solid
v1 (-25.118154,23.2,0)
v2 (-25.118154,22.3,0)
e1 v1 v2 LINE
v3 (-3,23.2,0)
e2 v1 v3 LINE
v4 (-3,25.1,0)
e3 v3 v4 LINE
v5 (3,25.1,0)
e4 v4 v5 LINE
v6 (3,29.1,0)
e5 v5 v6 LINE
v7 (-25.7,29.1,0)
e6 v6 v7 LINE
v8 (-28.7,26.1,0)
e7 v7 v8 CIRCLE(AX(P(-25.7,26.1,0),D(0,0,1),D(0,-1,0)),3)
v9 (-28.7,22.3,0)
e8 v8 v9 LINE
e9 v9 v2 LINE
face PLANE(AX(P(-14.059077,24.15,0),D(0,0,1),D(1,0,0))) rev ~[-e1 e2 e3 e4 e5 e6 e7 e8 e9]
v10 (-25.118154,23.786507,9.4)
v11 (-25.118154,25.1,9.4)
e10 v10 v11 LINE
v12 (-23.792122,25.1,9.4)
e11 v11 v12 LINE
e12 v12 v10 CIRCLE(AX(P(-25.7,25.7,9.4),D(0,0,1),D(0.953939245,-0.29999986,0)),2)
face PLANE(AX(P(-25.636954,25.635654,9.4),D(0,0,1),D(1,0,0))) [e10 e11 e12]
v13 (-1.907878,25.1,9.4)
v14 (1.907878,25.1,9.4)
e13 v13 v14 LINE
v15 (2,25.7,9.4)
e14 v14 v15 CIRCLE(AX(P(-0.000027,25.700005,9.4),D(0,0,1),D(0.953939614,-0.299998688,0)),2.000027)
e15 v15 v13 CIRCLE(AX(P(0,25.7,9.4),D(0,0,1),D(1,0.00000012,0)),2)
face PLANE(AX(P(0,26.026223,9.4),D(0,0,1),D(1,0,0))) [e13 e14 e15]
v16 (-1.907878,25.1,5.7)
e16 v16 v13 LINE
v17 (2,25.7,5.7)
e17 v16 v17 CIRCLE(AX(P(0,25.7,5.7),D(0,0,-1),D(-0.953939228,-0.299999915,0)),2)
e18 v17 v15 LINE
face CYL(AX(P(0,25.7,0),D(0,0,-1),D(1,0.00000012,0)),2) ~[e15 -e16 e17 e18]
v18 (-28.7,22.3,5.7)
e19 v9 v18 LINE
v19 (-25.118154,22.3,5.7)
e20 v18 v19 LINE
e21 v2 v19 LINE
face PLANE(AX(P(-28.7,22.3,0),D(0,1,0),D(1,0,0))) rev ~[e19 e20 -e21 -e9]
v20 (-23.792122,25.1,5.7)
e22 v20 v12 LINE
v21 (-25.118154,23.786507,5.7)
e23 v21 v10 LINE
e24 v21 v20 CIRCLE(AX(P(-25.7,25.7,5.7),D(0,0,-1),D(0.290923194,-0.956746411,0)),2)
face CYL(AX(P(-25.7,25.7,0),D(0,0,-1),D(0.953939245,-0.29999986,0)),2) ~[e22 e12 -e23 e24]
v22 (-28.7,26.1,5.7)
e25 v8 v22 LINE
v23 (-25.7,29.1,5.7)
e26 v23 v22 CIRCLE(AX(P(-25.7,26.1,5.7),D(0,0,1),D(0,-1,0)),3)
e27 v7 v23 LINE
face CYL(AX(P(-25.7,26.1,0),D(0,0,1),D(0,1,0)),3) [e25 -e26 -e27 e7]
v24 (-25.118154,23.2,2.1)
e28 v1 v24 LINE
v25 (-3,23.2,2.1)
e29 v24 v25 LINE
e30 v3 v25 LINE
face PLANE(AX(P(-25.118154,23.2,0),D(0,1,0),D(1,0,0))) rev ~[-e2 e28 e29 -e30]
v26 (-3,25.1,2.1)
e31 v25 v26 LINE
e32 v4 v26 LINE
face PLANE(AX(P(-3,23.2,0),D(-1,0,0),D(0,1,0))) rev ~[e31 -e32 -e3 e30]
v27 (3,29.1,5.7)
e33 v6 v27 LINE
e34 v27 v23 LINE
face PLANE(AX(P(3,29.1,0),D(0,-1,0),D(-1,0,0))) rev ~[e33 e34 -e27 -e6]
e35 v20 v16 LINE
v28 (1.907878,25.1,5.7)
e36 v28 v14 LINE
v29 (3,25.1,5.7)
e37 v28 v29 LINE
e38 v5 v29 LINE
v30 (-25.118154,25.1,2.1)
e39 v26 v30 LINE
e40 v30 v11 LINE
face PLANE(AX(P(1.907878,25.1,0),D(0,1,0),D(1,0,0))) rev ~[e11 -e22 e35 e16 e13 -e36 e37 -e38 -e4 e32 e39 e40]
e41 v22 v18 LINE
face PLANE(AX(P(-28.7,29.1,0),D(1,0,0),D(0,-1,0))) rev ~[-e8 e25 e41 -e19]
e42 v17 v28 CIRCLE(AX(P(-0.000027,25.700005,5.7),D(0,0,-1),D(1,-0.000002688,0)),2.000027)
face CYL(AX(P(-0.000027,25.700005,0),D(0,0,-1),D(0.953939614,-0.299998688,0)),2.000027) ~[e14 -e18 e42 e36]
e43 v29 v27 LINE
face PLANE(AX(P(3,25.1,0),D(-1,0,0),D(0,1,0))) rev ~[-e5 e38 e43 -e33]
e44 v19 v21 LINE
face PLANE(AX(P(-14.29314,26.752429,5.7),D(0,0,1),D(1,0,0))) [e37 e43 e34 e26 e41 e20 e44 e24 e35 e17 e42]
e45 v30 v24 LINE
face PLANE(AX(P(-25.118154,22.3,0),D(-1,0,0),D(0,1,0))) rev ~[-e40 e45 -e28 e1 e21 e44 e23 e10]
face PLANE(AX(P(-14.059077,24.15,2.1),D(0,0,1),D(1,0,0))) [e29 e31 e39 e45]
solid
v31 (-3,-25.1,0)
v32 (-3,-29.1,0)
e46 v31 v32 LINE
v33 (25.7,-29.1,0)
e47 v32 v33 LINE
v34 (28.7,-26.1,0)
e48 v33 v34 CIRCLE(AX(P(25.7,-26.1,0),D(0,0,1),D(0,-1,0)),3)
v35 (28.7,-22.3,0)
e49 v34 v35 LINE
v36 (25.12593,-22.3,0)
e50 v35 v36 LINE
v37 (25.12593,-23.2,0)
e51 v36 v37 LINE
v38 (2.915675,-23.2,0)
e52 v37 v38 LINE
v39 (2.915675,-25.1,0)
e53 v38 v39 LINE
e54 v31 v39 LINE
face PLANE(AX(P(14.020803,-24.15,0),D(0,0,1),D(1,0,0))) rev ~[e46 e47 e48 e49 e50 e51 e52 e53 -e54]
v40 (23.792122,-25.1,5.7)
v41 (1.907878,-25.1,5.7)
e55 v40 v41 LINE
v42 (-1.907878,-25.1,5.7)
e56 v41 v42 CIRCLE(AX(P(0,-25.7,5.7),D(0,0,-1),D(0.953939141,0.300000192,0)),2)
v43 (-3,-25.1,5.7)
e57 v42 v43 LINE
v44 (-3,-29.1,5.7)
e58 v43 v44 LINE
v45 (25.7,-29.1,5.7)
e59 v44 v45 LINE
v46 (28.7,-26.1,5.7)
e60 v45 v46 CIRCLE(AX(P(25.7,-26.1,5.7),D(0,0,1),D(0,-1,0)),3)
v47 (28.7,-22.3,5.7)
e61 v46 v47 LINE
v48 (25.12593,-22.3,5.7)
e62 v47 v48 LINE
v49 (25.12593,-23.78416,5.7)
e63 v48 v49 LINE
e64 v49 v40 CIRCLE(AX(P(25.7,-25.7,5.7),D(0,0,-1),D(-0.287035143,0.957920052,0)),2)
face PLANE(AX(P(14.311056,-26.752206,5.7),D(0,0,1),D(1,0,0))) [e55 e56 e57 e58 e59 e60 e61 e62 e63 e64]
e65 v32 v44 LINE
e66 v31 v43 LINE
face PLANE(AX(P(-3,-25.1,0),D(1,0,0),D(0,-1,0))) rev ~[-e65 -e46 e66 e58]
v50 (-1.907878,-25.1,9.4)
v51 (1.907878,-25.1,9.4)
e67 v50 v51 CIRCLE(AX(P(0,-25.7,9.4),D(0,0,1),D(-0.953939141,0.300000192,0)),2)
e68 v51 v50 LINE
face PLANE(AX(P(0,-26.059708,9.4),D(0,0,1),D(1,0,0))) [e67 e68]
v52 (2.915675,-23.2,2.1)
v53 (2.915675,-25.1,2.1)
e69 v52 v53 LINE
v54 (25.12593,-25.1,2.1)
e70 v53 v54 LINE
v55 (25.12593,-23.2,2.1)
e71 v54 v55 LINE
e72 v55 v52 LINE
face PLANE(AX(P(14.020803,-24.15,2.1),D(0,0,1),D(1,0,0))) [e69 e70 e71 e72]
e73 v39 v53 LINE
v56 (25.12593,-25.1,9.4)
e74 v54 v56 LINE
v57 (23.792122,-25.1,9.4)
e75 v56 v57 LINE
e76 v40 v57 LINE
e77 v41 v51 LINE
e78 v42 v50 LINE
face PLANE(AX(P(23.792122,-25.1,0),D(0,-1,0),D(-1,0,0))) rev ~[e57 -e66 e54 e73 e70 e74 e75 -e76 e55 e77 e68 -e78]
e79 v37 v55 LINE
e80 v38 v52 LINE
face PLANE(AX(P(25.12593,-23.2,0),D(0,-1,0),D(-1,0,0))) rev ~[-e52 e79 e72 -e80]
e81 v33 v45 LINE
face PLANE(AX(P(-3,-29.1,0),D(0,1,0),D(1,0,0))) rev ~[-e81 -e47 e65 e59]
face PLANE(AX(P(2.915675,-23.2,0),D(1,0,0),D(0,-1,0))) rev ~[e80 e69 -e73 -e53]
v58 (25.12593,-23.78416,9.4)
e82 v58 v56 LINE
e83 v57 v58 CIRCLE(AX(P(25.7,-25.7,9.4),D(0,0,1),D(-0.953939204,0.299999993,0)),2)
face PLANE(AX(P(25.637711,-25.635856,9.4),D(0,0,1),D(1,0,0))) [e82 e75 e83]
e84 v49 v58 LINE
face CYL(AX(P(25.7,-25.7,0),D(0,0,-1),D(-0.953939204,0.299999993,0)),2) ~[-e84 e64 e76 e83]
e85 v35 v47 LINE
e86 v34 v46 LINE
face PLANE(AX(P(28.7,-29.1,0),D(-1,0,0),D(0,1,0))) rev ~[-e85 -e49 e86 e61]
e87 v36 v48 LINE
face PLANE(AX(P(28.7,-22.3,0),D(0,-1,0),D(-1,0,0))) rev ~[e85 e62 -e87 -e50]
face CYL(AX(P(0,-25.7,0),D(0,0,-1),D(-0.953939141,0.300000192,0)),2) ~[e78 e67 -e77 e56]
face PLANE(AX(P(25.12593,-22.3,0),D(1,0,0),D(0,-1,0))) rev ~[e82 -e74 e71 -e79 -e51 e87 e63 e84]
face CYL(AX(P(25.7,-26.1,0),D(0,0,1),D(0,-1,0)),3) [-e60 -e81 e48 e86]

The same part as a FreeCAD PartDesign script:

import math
import FreeCAD as App
import Part
import Sketcher
from FreeCAD import Vector


def edges_at(feature, points):
    """Names of the edges that pass closest to the given points."""
    edges = feature.Shape.Edges
    near = lambda p: min(range(len(edges)), key=lambda i: edges[i].distToShape(Part.Vertex(*p))[0])
    return sorted({f"Edge{near(p) + 1}" for p in points})

doc = App.newDocument("Part")
params = doc.addObject("Spreadsheet::Sheet", "Params")
for row, (alias, value) in enumerate([
    ("sketch1_radius", "2 mm"),
    ("pad1_length", "9.4 mm"),
    ("sketch2_radius", "2 mm"),
    ("sketch2_height", "4 mm"),
    ("sketch2_width", "31.7 mm"),
    ("sketch2_height2", "6.8 mm"),
    ("pad2_length", "5.7 mm"),
    ("sketch3_height", "1.9 mm"),
    ("pad3_length", "2.1 mm"),
    ("fillet_radius", "3 mm"),
], start=1):
    params.set(f"A{row}", alias)
    params.set(f"B{row}", "=" + value)
    params.setAlias(f"B{row}", alias)

body = doc.addObject("PartDesign::Body", "Body")
body.AllowCompound = True

sketch1 = body.newObject("Sketcher::SketchObject", "Sketch")
sketch1.AttachmentSupport = (doc.getObject("XY_Plane"), [""])
sketch1.MapMode = "FlatFace"
sketch1.addGeometry([
    Part.ArcOfCircle(Part.Circle(Vector(25.7, -25.7, 0), Vector(0, 0, 1), 2), math.radians(163), math.radians(467)),
    Part.LineSegment(Vector(25.1, -23.8, 0), Vector(25.1, -25.1, 0)),
    Part.LineSegment(Vector(25.1, -25.1, 0), Vector(23.8, -25.1, 0)),
    Part.ArcOfCircle(Part.Circle(Vector(0, -25.7, 0), Vector(0, 0, 1), 2), math.radians(163), math.radians(377)),
    Part.LineSegment(Vector(1.9, -25.1, 0), Vector(-1.9, -25.1, 0)),
    Part.LineSegment(Vector(-25.1, 25.1, 0), Vector(-23.8, 25.1, 0)),
    Part.ArcOfCircle(Part.Circle(Vector(-25.7, 25.7, 0), Vector(0, 0, 1), 2), math.radians(-17), math.radians(287)),
    Part.LineSegment(Vector(-25.1, 23.8, 0), Vector(-25.1, 25.1, 0)),
    Part.ArcOfCircle(Part.Circle(Vector(0, 25.7, 0), Vector(0, 0, 1), 2), math.radians(-17.46), math.radians(0)),
    Part.ArcOfCircle(Part.Circle(Vector(0, 25.7, 0), Vector(0, 0, 1), 2), math.radians(0), math.radians(197)),
    Part.LineSegment(Vector(-1.9, 25.1, 0), Vector(1.9, 25.1, 0)),
], False)
sketch1.addConstraint([
    Sketcher.Constraint("Coincident", 0, 2, 1, 1),
    Sketcher.Constraint("Coincident", 1, 2, 2, 1),
    Sketcher.Constraint("Coincident", 2, 2, 0, 1),
    Sketcher.Constraint("Coincident", 3, 1, 4, 2),
    Sketcher.Constraint("Coincident", 4, 1, 3, 2),
    Sketcher.Constraint("Coincident", 5, 2, 6, 1),
    Sketcher.Constraint("Coincident", 6, 2, 7, 1),
    Sketcher.Constraint("Coincident", 7, 2, 5, 1),
    Sketcher.Constraint("Coincident", 8, 2, 9, 1),
    Sketcher.Constraint("Coincident", 9, 2, 10, 1),
    Sketcher.Constraint("Coincident", 10, 2, 8, 1),
    Sketcher.Constraint("Vertical", 1),
    Sketcher.Constraint("Horizontal", 2),
    Sketcher.Constraint("Horizontal", 4),
    Sketcher.Constraint("Horizontal", 5),
    Sketcher.Constraint("Vertical", 7),
    Sketcher.Constraint("Horizontal", 10),
    Sketcher.Constraint("Equal", 0, 3),
    Sketcher.Constraint("Equal", 3, 6),
    Sketcher.Constraint("Equal", 6, 9),
    Sketcher.Constraint("Symmetric", 0, 3, 6, 3, -1, 1),
    Sketcher.Constraint("Symmetric", 3, 3, 9, 3, -1, 1),
    Sketcher.Constraint("Symmetric", 3, 1, 10, 2, -1, 1),
    Sketcher.Constraint("PointOnObject", 3, 3, -2),
    Sketcher.Constraint("Horizontal", 0, 3, 3, 3),
    Sketcher.Constraint("Horizontal", 2, 2, 3, 1),
    Sketcher.Constraint("Horizontal", 9, 3, 8, 2),
    Sketcher.Constraint("Horizontal", 7, 2, 9, 2),
    Sketcher.Constraint("Radius", 0, 2.0),
    Sketcher.Constraint("DistanceX", -1, 1, 0, 3, 25.7),
    Sketcher.Constraint("DistanceY", 0, 3, -1, 1, 25.7),
    Sketcher.Constraint("DistanceY", 1, 2, -1, 1, 25.1),
    Sketcher.Constraint("Radius", 8, 2.000027),
    Sketcher.Constraint("DistanceX", 2, 2, 2, 1, 1.333808),
    Sketcher.Constraint("DistanceY", 6, 2, 8, 3, 1.913498),
])
sketch1.setExpression("Constraints[28]", "Params.sketch1_radius")
pad1 = body.newObject("PartDesign::Pad", "Pad")
pad1.Profile = sketch1
pad1.setExpression("Length", "Params.pad1_length")

sketch2 = body.newObject("Sketcher::SketchObject", "Sketch001")
sketch2.AttachmentSupport = (doc.getObject("XY_Plane"), [""])
sketch2.MapMode = "FlatFace"
sketch2.addGeometry([
    Part.LineSegment(Vector(28.7, -22.3, 0), Vector(25.1, -22.3, 0)),
    Part.LineSegment(Vector(25.1, -22.3, 0), Vector(25.1, -23.8, 0)),
    Part.ArcOfCircle(Part.Circle(Vector(25.7, -25.7, 0), Vector(0, 0, 1), 2), math.radians(163), math.radians(467)),
    Part.LineSegment(Vector(23.8, -25.1, 0), Vector(1.9, -25.1, 0)),
    Part.ArcOfCircle(Part.Circle(Vector(0, -25.7, 0), Vector(0, 0, 1), 2), math.radians(163), math.radians(377)),
    Part.LineSegment(Vector(-1.9, -25.1, 0), Vector(-3, -25.1, 0)),
    Part.LineSegment(Vector(-3, -25.1, 0), Vector(-3, -29.1, 0)),
    Part.LineSegment(Vector(-3, -29.1, 0), Vector(28.7, -29.1, 0)),
    Part.LineSegment(Vector(28.7, -29.1, 0), Vector(28.7, -22.3, 0)),
    Part.LineSegment(Vector(1.9, 25.1, 0), Vector(3, 25.1, 0)),
    Part.LineSegment(Vector(3, 25.1, 0), Vector(3, 29.1, 0)),
    Part.LineSegment(Vector(3, 29.1, 0), Vector(-28.7, 29.1, 0)),
    Part.LineSegment(Vector(-28.7, 29.1, 0), Vector(-28.7, 22.3, 0)),
    Part.LineSegment(Vector(-28.7, 22.3, 0), Vector(-25.1, 22.3, 0)),
    Part.LineSegment(Vector(-25.1, 22.3, 0), Vector(-25.1, 23.8, 0)),
    Part.ArcOfCircle(Part.Circle(Vector(-25.7, 25.7, 0), Vector(0, 0, 1), 2), math.radians(-17), math.radians(287)),
    Part.LineSegment(Vector(-23.8, 25.1, 0), Vector(-1.9, 25.1, 0)),
    Part.ArcOfCircle(Part.Circle(Vector(0, 25.7, 0), Vector(0, 0, 1), 2), math.radians(0), math.radians(197)),
    Part.ArcOfCircle(Part.Circle(Vector(0, 25.7, 0), Vector(0, 0, 1), 2), math.radians(-17.46), math.radians(0)),
], False)
sketch2.addConstraint([
    Sketcher.Constraint("Coincident", 0, 2, 1, 1),
    Sketcher.Constraint("Coincident", 1, 2, 2, 2),
    Sketcher.Constraint("Coincident", 2, 1, 3, 1),
    Sketcher.Constraint("Coincident", 3, 2, 4, 2),
    Sketcher.Constraint("Coincident", 4, 1, 5, 1),
    Sketcher.Constraint("Coincident", 5, 2, 6, 1),
    Sketcher.Constraint("Coincident", 6, 2, 7, 1),
    Sketcher.Constraint("Coincident", 7, 2, 8, 1),
    Sketcher.Constraint("Coincident", 8, 2, 0, 1),
    Sketcher.Constraint("Coincident", 9, 2, 10, 1),
    Sketcher.Constraint("Coincident", 10, 2, 11, 1),
    Sketcher.Constraint("Coincident", 11, 2, 12, 1),
    Sketcher.Constraint("Coincident", 12, 2, 13, 1),
    Sketcher.Constraint("Coincident", 13, 2, 14, 1),
    Sketcher.Constraint("Coincident", 14, 2, 15, 2),
    Sketcher.Constraint("Coincident", 15, 1, 16, 1),
    Sketcher.Constraint("Coincident", 16, 2, 17, 2),
    Sketcher.Constraint("Coincident", 17, 1, 18, 2),
    Sketcher.Constraint("Coincident", 18, 1, 9, 1),
    Sketcher.Constraint("Horizontal", 0),
    Sketcher.Constraint("Vertical", 1),
    Sketcher.Constraint("Horizontal", 3),
    Sketcher.Constraint("Horizontal", 5),
    Sketcher.Constraint("Vertical", 6),
    Sketcher.Constraint("Horizontal", 7),
    Sketcher.Constraint("Vertical", 8),
    Sketcher.Constraint("Horizontal", 9),
    Sketcher.Constraint("Vertical", 10),
    Sketcher.Constraint("Horizontal", 11),
    Sketcher.Constraint("Vertical", 12),
    Sketcher.Constraint("Horizontal", 13),
    Sketcher.Constraint("Vertical", 14),
    Sketcher.Constraint("Horizontal", 16),
    Sketcher.Constraint("Equal", 2, 4),
    Sketcher.Constraint("Equal", 4, 15),
    Sketcher.Constraint("Equal", 15, 17),
    Sketcher.Constraint("Symmetric", 2, 3, 15, 3, -1, 1),
    Sketcher.Constraint("Symmetric", 4, 3, 17, 3, -1, 1),
    Sketcher.Constraint("Symmetric", 5, 2, 9, 2, -1, 1),
    Sketcher.Constraint("Symmetric", 7, 2, 11, 2, -1, 1),
    Sketcher.Constraint("Symmetric", 3, 2, 4, 1, -2),
    Sketcher.Constraint("Symmetric", 16, 2, 18, 1, -2),
    Sketcher.Constraint("Horizontal", 2, 3, 4, 3),
    Sketcher.Constraint("Horizontal", 15, 3, 17, 1),
    Sketcher.Constraint("Equal", 8, 12),
    Sketcher.Constraint("Radius", 2, 2.0),
    Sketcher.Constraint("DistanceY", 6, 2, 6, 1, 4.0),
    Sketcher.Constraint("DistanceX", 7, 1, 7, 2, 31.7),
    Sketcher.Constraint("DistanceY", 8, 1, 8, 2, 6.8),
    Sketcher.Constraint("DistanceX", 5, 2, -1, 1, 3.0),
    Sketcher.Constraint("DistanceY", 0, 2, 17, 3, 48.0),
    Sketcher.Constraint("DistanceX", 2, 3, 7, 2, 3.0),
    Sketcher.Constraint("DistanceY", 2, 3, -1, 1, 25.7),
    Sketcher.Constraint("Radius", 18, 2.000027),
    Sketcher.Constraint("DistanceX", 0, 2, 0, 1, 3.57407),
    Sketcher.Constraint("DistanceY", 14, 2, 18, 3, 1.913498),
])
sketch2.setExpression("Constraints[45]", "Params.sketch2_radius")
sketch2.setExpression("Constraints[46]", "Params.sketch2_height")
sketch2.setExpression("Constraints[47]", "Params.sketch2_width")
sketch2.setExpression("Constraints[48]", "Params.sketch2_height2")
pad2 = body.newObject("PartDesign::Pad", "Pad001")
pad2.Profile = sketch2
pad2.setExpression("Length", "Params.pad2_length")

sketch3 = body.newObject("Sketcher::SketchObject", "Sketch002")
sketch3.AttachmentSupport = (doc.getObject("XY_Plane"), [""])
sketch3.MapMode = "FlatFace"
sketch3.addGeometry([
    Part.LineSegment(Vector(-3, 23.2, 0), Vector(-3, 25.1, 0)),
    Part.LineSegment(Vector(-3, 25.1, 0), Vector(-25.1, 25.1, 0)),
    Part.LineSegment(Vector(-25.1, 25.1, 0), Vector(-25.1, 23.2, 0)),
    Part.LineSegment(Vector(-25.1, 23.2, 0), Vector(-3, 23.2, 0)),
    Part.LineSegment(Vector(25.1, -23.2, 0), Vector(2.9, -23.2, 0)),
    Part.LineSegment(Vector(2.9, -23.2, 0), Vector(2.9, -25.1, 0)),
    Part.LineSegment(Vector(2.9, -25.1, 0), Vector(25.1, -25.1, 0)),
    Part.LineSegment(Vector(25.1, -25.1, 0), Vector(25.1, -23.2, 0)),
], False)
sketch3.addConstraint([
    Sketcher.Constraint("Coincident", 0, 2, 1, 1),
    Sketcher.Constraint("Coincident", 1, 2, 2, 1),
    Sketcher.Constraint("Coincident", 2, 2, 3, 1),
    Sketcher.Constraint("Coincident", 3, 2, 0, 1),
    Sketcher.Constraint("Coincident", 4, 2, 5, 1),
    Sketcher.Constraint("Coincident", 5, 2, 6, 1),
    Sketcher.Constraint("Coincident", 6, 2, 7, 1),
    Sketcher.Constraint("Coincident", 7, 2, 4, 1),
    Sketcher.Constraint("Vertical", 0),
    Sketcher.Constraint("Horizontal", 1),
    Sketcher.Constraint("Vertical", 2),
    Sketcher.Constraint("Horizontal", 3),
    Sketcher.Constraint("Horizontal", 4),
    Sketcher.Constraint("Vertical", 5),
    Sketcher.Constraint("Horizontal", 6),
    Sketcher.Constraint("Vertical", 7),
    Sketcher.Constraint("Equal", 2, 5),
    Sketcher.Constraint("DistanceY", 0, 1, 0, 2, 1.9),
    Sketcher.Constraint("DistanceX", 0, 2, -1, 1, 3.0),
    Sketcher.Constraint("DistanceY", -1, 1, 0, 2, 25.1),
    Sketcher.Constraint("DistanceY", 4, 2, -1, 1, 23.2),
    Sketcher.Constraint("DistanceX", 1, 2, 1, 1, 22.118154),
    Sketcher.Constraint("DistanceX", 4, 2, 4, 1, 22.210255),
    Sketcher.Constraint("DistanceX", -1, 1, 6, 2, 25.12593),
])
sketch3.setExpression("Constraints[17]", "Params.sketch3_height")
pad3 = body.newObject("PartDesign::Pad", "Pad002")
pad3.Profile = sketch3
pad3.setExpression("Length", "Params.pad3_length")
doc.recompute()

fillet = body.newObject("PartDesign::Fillet", "Fillet")
fillet.Base = (pad3, edges_at(pad3, [(28.7, -29.1, 2.85), (-28.7, 29.1, 2.85)]))
fillet.setExpression("Radius", "Params.fillet_radius")

doc.recompute()
